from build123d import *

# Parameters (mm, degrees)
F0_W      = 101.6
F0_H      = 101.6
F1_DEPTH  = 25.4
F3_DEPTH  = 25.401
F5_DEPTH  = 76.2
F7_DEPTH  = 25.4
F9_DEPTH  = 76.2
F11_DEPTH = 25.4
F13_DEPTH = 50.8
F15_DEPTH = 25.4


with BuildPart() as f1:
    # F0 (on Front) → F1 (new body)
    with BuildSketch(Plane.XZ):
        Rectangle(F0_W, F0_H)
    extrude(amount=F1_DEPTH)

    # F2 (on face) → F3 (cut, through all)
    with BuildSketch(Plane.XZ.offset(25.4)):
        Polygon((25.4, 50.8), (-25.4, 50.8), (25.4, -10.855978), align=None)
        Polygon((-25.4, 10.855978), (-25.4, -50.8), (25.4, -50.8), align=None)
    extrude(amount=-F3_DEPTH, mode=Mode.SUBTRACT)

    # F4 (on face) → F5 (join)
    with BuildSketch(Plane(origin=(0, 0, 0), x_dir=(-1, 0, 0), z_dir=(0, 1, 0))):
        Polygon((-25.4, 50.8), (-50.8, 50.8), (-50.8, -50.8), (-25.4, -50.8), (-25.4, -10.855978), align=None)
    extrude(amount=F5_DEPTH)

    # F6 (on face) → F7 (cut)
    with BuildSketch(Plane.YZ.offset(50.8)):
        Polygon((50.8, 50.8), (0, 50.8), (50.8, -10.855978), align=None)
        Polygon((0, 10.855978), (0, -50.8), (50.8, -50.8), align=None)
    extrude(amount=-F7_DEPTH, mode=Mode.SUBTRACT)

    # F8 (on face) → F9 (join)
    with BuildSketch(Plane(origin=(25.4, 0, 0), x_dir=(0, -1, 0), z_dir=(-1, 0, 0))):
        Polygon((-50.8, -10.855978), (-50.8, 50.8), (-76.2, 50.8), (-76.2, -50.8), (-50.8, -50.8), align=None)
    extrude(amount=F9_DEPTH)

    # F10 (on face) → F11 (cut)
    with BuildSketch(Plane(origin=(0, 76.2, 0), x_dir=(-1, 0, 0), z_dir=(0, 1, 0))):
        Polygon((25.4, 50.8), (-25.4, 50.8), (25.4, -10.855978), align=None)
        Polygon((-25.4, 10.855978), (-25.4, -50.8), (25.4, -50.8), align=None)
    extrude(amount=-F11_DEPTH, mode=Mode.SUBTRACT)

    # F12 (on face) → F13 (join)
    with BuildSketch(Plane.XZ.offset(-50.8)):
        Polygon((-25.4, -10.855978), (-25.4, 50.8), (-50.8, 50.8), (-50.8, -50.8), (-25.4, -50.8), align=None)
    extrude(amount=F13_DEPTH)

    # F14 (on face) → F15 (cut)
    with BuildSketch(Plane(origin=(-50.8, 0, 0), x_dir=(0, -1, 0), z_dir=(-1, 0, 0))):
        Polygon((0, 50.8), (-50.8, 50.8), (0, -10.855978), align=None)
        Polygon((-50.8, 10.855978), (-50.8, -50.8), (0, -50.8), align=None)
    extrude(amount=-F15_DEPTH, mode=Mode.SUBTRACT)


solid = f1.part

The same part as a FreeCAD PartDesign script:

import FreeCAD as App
import Part
import Sketcher

V = App.Vector
Q = App.Units.Quantity


def add_polygon(sketch, points):
    """Adds a closed chain of lines whose ends are joined by coincident constraints."""
    first, n = sketch.GeometryCount, len(points)
    for a, b in zip(points, points[1:] + points[:1]):
        sketch.addGeometry(Part.LineSegment(App.Vector(*a, 0), App.Vector(*b, 0)), False)
    for i in range(n):
        sketch.addConstraint(Sketcher.Constraint("Coincident", first + i, 2, first + (i + 1) % n, 1))

doc = App.newDocument("Part")
body = doc.addObject("PartDesign::Body", "Body")

# Sketch on XZ plane
sketch1 = body.newObject("Sketcher::SketchObject", "Sketch")
sketch1.AttachmentSupport = (doc.getObject("XZ_Plane"), [""])
sketch1.MapMode = "FlatFace"
add_polygon(sketch1, [(-51, 51), (-51, -51), (51, -51), (51, 51)])  # lines 0-3
sketch1.addConstraint([
    Sketcher.Constraint("Vertical", 0),
    Sketcher.Constraint("Horizontal", 1),
    Sketcher.Constraint("Vertical", 2),
    Sketcher.Constraint("Horizontal", 3),
    Sketcher.Constraint("Symmetric", 0, 2, 2, 2, -1, 1),
    Sketcher.Constraint("Equal", 3, 0),
    Sketcher.Constraint("DistanceX", 1, 1, 1, 2, Q("4 in")),
])
pad1 = body.newObject("PartDesign::Pad", "Pad")
pad1.Profile = sketch1
pad1.Length = Q("1 in")

# Sketch on XZ plane
sketch2 = body.newObject("Sketcher::SketchObject", "Sketch001")
sketch2.AttachmentSupport = (doc.getObject("XZ_Plane"), [""])
sketch2.MapMode = "FlatFace"
sketch2.AttachmentOffset = App.Placement(V(0, 0, 1 * 25.4), App.Rotation())
add_polygon(sketch2, [(25, 51), (-25, 51), (25, -11)])  # lines 0-2
add_polygon(sketch2, [(-25, 11), (-25, -51), (25, -51)])  # lines 3-5
sketch2.addConstraint([
    Sketcher.Constraint("Horizontal", 0),
    Sketcher.Constraint("Vertical", 2),
    Sketcher.Constraint("Vertical", 3),
    Sketcher.Constraint("Horizontal", 4),
    Sketcher.Constraint("Symmetric", 2, 2, 3, 2, -1, 1),
    Sketcher.Constraint("Parallel", 1, 5),
    Sketcher.Constraint("Vertical", 0, 2, 3, 2),
    Sketcher.Constraint("Vertical", 2, 2, 4, 2),
    Sketcher.Constraint("DistanceX", 0, 2, 0, 1, Q("2 in")),
    Sketcher.Constraint("DistanceY", -1, 1, 0, 2, Q("2 in")),
    Sketcher.Constraint("DistanceY", 2, 1, 2, 2, 61.655978),
])
pocket1 = body.newObject("PartDesign::Pocket", "Pocket")
pocket1.Profile = sketch2
pocket1.Type = "ThroughAll"

# Sketch on XZ plane
sketch3 = body.newObject("Sketcher::SketchObject", "Sketch002")
sketch3.AttachmentSupport = (doc.getObject("XZ_Plane"), [""])
sketch3.MapMode = "FlatFace"
add_polygon(sketch3, [(25, 51), (51, 51), (51, -51), (25, -51)])  # lines 0-3
sketch3.addConstraint([
    Sketcher.Constraint("Horizontal", 0),
    Sketcher.Constraint("Vertical", 1),
    Sketcher.Constraint("Horizontal", 2),
    Sketcher.Constraint("Vertical", 3),
    Sketcher.Constraint("DistanceX", 0, 1, 0, 2, Q("1 in")),
    Sketcher.Constraint("DistanceY", 1, 2, 1, 1, Q("4 in")),
    Sketcher.Constraint("DistanceX", -1, 1, 0, 2, Q("2 in")),
    Sketcher.Constraint("DistanceY", -1, 1, 0, 2, Q("2 in")),
])
pad2 = body.newObject("PartDesign::Pad", "Pad001")
pad2.Profile = sketch3
pad2.Length = Q("3 in")
pad2.Reversed = True

# Sketch on YZ plane
sketch4 = body.newObject("Sketcher::SketchObject", "Sketch003")
sketch4.AttachmentSupport = (doc.getObject("YZ_Plane"), [""])
sketch4.MapMode = "FlatFace"
sketch4.AttachmentOffset = App.Placement(V(0, 0, 2 * 25.4), App.Rotation())
add_polygon(sketch4, [(51, 51), (0, 51), (51, -11)])  # lines 0-2
add_polygon(sketch4, [(0, 11), (0, -51), (51, -51)])  # lines 3-5
sketch4.addConstraint([
    Sketcher.Constraint("Horizontal", 0),
    Sketcher.Constraint("Vertical", 2),
    Sketcher.Constraint("Vertical", 3),
    Sketcher.Constraint("Horizontal", 4),
    Sketcher.Constraint("Symmetric", 0, 2, 3, 2, -1, 1),
    Sketcher.Constraint("PointOnObject", 0, 2, -2),
    Sketcher.Constraint("Parallel", 1, 5),
    Sketcher.Constraint("Vertical", 2, 2, 4, 2),
    Sketcher.Constraint("DistanceX", 0, 2, 0, 1, Q("2 in")),
    Sketcher.Constraint("DistanceY", -1, 1, 0, 2, Q("2 in")),
    Sketcher.Constraint("DistanceY", 2, 1, 2, 2, 61.655978),
])
pocket2 = body.newObject("PartDesign::Pocket", "Pocket001")
pocket2.Profile = sketch4
pocket2.Length = Q("1 in")

# Sketch on YZ plane
sketch5 = body.newObject("Sketcher::SketchObject", "Sketch004")
sketch5.AttachmentSupport = (doc.getObject("YZ_Plane"), [""])
sketch5.MapMode = "FlatFace"
sketch5.AttachmentOffset = App.Placement(V(0, 0, 1 * 25.4), App.Rotation())
add_polygon(sketch5, [(51, 51), (76, 51), (76, -51), (51, -51)])  # lines 0-3
sketch5.addConstraint([
    Sketcher.Constraint("Horizontal", 0),
    Sketcher.Constraint("Vertical", 1),
    Sketcher.Constraint("Horizontal", 2),
    Sketcher.Constraint("Vertical", 3),
    Sketcher.Constraint("DistanceX", 0, 1, 0, 2, Q("1 in")),
    Sketcher.Constraint("DistanceY", 1, 2, 1, 1, Q("4 in")),
    Sketcher.Constraint("DistanceX", -1, 1, 0, 2, Q("3 in")),
    Sketcher.Constraint("DistanceY", -1, 1, 0, 2, Q("2 in")),
])
pad3 = body.newObject("PartDesign::Pad", "Pad002")
pad3.Profile = sketch5
pad3.Length = Q("3 in")
pad3.Reversed = True

# Sketch on XZ plane
sketch6 = body.newObject("Sketcher::SketchObject", "Sketch005")
sketch6.AttachmentSupport = (doc.getObject("XZ_Plane"), [""])
sketch6.MapMode = "FlatFace"
sketch6.AttachmentOffset = App.Placement(V(0, 0, -3 * 25.4), App.Rotation())
add_polygon(sketch6, [(-25, 51), (25, 51), (-25, -11)])  # lines 0-2
add_polygon(sketch6, [(25, 11), (25, -51), (-25, -51)])  # lines 3-5
sketch6.addConstraint([
    Sketcher.Constraint("Horizontal", 0),
    Sketcher.Constraint("Vertical", 2),
    Sketcher.Constraint("Vertical", 3),
    Sketcher.Constraint("Horizontal", 4),
    Sketcher.Constraint("Symmetric", 2, 2, 3, 2, -1, 1),
    Sketcher.Constraint("Parallel", 1, 5),
    Sketcher.Constraint("Vertical", 0, 2, 3, 2),
    Sketcher.Constraint("Vertical", 2, 2, 4, 2),
    Sketcher.Constraint("DistanceX", 0, 1, 0, 2, Q("2 in")),
    Sketcher.Constraint("DistanceY", -1, 1, 0, 2, Q("2 in")),
    Sketcher.Constraint("DistanceY", 2, 1, 2, 2, 61.655978),
])
pocket3 = body.newObject("PartDesign::Pocket", "Pocket002")
pocket3.Profile = sketch6
pocket3.Length = Q("1 in")
pocket3.Reversed = True

# Sketch on XZ plane
sketch7 = body.newObject("Sketcher::SketchObject", "Sketch006")
sketch7.AttachmentSupport = (doc.getObject("XZ_Plane"), [""])
sketch7.MapMode = "FlatFace"
sketch7.AttachmentOffset = App.Placement(V(0, 0, -2 * 25.4), App.Rotation())
add_polygon(sketch7, [(-25, 51), (-51, 51), (-51, -51), (-25, -51)])  # lines 0-3
sketch7.addConstraint([
    Sketcher.Constraint("Horizontal", 0),
    Sketcher.Constraint("Vertical", 1),
    Sketcher.Constraint("Horizontal", 2),
    Sketcher.Constraint("Vertical", 3),
    Sketcher.Constraint("DistanceX", 0, 2, 0, 1, Q("1 in")),
    Sketcher.Constraint("DistanceY", 1, 2, 1, 1, Q("4 in")),
    Sketcher.Constraint("DistanceX", 0, 2, -1, 1, Q("2 in")),
    Sketcher.Constraint("DistanceY", -1, 1, 0, 2, Q("2 in")),
])
pad4 = body.newObject("PartDesign::Pad", "Pad003")
pad4.Profile = sketch7
pad4.Length = Q("2 in")

# Sketch on YZ plane
sketch8 = body.newObject("Sketcher::SketchObject", "Sketch007")
sketch8.AttachmentSupport = (doc.getObject("YZ_Plane"), [""])
sketch8.MapMode = "FlatFace"
sketch8.AttachmentOffset = App.Placement(V(0, 0, -2 * 25.4), App.Rotation())
add_polygon(sketch8, [(0, 51), (51, 51), (0, -11)])  # lines 0-2
add_polygon(sketch8, [(51, 11), (51, -51), (0, -51)])  # lines 3-5
sketch8.addConstraint([
    Sketcher.Constraint("Horizontal", 0),
    Sketcher.Constraint("Vertical", 2),
    Sketcher.Constraint("Vertical", 3),
    Sketcher.Constraint("Horizontal", 4),
    Sketcher.Constraint("Symmetric", 2, 2, 4, 2, -1, 1),
    Sketcher.Constraint("PointOnObject", 1, 2, -2),
    Sketcher.Constraint("Parallel", 1, 5),
    Sketcher.Constraint("Vertical", 0, 2, 3, 2),
    Sketcher.Constraint("DistanceX", 0, 1, 0, 2, Q("2 in")),
    Sketcher.Constraint("DistanceY", -1, 1, 0, 2, Q("2 in")),
    Sketcher.Constraint("DistanceY", 2, 1, 2, 2, 61.655978),
])
pocket4 = body.newObject("PartDesign::Pocket", "Pocket003")
pocket4.Profile = sketch8
pocket4.Length = Q("1 in")
pocket4.Reversed = True

doc.recompute()
